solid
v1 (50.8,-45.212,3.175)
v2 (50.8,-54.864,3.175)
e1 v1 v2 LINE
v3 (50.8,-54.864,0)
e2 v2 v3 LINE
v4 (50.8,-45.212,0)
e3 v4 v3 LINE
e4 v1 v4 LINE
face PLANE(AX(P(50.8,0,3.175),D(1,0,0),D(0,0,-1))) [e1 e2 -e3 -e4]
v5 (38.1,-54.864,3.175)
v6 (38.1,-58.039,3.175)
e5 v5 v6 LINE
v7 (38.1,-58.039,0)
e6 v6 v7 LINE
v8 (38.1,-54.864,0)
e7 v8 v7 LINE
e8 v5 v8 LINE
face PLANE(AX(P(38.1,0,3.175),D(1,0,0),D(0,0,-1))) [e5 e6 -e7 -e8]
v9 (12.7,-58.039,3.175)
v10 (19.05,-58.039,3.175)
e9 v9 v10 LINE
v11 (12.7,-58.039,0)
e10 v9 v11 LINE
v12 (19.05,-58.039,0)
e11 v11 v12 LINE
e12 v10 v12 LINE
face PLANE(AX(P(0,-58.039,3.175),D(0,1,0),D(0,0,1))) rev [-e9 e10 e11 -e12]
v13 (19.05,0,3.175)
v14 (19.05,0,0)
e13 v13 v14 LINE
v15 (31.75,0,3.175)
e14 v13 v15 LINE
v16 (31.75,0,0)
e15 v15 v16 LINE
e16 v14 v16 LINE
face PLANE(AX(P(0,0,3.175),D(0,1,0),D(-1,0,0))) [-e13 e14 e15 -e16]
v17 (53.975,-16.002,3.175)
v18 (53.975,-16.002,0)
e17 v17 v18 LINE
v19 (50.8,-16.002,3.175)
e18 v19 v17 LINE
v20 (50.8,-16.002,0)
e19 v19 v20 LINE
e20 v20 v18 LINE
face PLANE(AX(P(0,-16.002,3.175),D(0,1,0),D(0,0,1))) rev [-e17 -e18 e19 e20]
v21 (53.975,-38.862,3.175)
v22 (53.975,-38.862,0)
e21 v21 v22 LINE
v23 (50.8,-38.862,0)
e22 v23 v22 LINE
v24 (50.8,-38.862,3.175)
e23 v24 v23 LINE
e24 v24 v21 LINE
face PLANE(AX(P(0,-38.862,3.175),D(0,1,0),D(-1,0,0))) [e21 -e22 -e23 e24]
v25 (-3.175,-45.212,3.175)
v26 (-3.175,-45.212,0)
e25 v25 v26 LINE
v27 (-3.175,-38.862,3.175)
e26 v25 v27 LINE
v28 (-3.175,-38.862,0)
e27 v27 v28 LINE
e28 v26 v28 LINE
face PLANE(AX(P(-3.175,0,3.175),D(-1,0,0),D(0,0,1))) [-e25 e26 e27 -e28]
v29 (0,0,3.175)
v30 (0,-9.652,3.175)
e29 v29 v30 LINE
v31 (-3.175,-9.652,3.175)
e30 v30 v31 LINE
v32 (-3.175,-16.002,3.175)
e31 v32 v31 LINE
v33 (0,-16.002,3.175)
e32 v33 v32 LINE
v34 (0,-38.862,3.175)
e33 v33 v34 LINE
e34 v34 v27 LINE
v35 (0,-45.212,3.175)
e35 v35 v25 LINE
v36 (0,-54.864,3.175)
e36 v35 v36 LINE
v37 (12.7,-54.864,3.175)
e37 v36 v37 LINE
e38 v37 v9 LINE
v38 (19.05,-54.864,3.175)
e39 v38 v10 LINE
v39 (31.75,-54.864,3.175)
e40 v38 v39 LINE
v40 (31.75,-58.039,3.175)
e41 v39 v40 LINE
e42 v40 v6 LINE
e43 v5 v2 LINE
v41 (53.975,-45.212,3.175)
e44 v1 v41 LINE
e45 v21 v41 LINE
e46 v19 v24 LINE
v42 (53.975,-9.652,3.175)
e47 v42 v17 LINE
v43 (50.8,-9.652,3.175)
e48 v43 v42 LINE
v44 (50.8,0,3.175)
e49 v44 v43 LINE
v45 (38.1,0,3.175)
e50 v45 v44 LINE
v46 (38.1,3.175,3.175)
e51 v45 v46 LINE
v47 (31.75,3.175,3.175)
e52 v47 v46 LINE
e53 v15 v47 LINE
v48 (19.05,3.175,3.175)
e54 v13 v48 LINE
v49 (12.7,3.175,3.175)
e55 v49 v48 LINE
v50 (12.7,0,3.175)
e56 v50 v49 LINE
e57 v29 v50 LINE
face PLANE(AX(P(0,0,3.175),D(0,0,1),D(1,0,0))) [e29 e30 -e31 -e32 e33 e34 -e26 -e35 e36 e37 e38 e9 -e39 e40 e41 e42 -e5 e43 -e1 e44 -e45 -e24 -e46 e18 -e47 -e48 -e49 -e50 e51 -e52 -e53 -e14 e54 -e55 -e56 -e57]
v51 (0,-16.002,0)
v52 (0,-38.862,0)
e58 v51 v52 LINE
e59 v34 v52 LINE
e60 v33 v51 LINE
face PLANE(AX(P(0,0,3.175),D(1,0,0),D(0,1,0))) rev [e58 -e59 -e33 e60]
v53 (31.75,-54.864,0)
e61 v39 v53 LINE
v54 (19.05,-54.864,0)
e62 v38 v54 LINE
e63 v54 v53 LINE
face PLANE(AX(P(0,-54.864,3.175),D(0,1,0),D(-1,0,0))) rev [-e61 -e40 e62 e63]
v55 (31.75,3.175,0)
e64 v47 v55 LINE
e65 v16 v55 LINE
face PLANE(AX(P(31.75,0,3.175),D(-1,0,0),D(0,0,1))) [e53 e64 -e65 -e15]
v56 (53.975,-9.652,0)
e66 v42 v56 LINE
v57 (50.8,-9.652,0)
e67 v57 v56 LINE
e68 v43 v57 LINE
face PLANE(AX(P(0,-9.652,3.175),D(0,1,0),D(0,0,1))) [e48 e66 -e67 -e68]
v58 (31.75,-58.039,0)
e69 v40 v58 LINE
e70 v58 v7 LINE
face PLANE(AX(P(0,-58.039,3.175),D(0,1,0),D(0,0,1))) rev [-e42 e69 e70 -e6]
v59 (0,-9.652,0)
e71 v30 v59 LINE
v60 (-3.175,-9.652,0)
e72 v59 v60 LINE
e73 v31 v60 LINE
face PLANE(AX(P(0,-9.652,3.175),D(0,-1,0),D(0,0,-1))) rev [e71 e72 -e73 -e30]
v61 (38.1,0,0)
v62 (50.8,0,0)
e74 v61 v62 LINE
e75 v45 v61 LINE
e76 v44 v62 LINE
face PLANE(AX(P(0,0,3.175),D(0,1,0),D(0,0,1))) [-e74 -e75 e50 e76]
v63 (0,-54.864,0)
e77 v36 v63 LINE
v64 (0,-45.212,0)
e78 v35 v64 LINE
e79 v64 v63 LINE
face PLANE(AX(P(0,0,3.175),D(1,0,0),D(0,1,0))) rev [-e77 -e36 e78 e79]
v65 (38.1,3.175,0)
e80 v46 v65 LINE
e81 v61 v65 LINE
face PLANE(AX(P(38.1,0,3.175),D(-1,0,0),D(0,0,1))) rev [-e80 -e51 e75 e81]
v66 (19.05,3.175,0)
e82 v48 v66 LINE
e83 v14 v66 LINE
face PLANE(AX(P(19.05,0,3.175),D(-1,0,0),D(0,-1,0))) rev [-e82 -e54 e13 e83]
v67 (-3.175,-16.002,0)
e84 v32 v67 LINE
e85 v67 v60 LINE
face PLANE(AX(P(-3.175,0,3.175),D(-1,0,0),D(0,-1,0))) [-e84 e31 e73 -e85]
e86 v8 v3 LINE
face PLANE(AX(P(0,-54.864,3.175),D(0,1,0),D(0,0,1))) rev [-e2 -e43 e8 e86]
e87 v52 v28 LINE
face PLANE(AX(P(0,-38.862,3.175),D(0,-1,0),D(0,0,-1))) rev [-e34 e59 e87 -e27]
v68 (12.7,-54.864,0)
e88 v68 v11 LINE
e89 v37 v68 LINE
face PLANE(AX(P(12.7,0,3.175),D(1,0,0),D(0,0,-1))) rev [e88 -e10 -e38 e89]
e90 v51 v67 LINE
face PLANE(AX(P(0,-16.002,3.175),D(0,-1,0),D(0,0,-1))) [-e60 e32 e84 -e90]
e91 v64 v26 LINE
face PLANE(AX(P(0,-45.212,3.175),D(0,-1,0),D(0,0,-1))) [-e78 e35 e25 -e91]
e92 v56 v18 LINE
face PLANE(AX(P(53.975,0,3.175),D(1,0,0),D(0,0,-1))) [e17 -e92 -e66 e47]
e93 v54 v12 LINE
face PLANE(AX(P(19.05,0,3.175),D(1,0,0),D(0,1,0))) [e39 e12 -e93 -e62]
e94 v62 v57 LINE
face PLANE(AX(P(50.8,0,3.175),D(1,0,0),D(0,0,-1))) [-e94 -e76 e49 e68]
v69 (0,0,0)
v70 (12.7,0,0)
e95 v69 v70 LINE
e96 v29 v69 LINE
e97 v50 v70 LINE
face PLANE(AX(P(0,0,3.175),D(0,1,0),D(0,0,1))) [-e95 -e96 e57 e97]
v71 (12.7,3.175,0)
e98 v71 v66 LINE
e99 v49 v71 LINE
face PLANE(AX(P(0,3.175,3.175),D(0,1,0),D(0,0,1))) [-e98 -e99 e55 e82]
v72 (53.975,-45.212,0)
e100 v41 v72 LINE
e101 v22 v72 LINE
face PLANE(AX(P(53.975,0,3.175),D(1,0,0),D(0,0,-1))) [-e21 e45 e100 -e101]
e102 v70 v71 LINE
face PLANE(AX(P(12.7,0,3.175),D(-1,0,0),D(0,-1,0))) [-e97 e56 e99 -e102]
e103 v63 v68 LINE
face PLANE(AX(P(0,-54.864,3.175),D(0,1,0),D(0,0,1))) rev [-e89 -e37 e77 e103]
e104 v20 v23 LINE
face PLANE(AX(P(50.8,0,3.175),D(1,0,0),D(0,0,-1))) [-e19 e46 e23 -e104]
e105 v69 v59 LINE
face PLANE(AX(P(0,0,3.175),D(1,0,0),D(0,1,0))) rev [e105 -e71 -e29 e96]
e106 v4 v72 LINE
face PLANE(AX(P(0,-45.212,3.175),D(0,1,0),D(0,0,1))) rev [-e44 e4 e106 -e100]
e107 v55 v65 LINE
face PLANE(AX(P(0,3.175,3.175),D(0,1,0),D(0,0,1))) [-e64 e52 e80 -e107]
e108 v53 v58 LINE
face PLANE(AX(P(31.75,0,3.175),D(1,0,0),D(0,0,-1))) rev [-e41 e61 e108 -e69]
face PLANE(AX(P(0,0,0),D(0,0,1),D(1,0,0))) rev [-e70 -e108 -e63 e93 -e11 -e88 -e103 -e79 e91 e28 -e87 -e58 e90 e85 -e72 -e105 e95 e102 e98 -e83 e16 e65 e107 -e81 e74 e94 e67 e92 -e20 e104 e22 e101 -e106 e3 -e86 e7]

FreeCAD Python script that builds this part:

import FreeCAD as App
import Part
import Sketcher
from FreeCAD import Vector
Q = App.Units.Quantity

doc = App.newDocument("Part")
body = doc.addObject("PartDesign::Body", "Body")

# Sketch on XY plane
sketch1 = body.newObject("Sketcher::SketchObject", "Sketch")
sketch1.AttachmentSupport = (doc.getObject("XY_Plane"), [""])
sketch1.MapMode = "FlatFace"
sketch1.addGeometry(Part.LineSegment(Vector(31.8, 0, 0), Vector(19.1, 0, 0)), False)
sketch1.addGeometry(Part.LineSegment(Vector(19.1, 0, 0), Vector(19.1, 3.2, 0)), False)
sketch1.addGeometry(Part.LineSegment(Vector(19.1, 3.2, 0), Vector(12.7, 3.2, 0)), False)
sketch1.addGeometry(Part.LineSegment(Vector(12.7, 3.2, 0), Vector(12.7, 0, 0)), False)
sketch1.addGeometry(Part.LineSegment(Vector(12.7, 0, 0), Vector(0, 0, 0)), False)
sketch1.addGeometry(Part.LineSegment(Vector(0, 0, 0), Vector(0, -9.7, 0)), False)
sketch1.addGeometry(Part.LineSegment(Vector(0, -9.7, 0), Vector(-3.2, -9.7, 0)), False)
sketch1.addGeometry(Part.LineSegment(Vector(-3.2, -9.7, 0), Vector(-3.2, -16, 0)), False)
sketch1.addGeometry(Part.LineSegment(Vector(-3.2, -16, 0), Vector(0, -16, 0)), False)
sketch1.addGeometry(Part.LineSegment(Vector(0, -16, 0), Vector(0, -38.9, 0)), False)
sketch1.addGeometry(Part.LineSegment(Vector(0, -38.9, 0), Vector(-3.2, -38.9, 0)), False)
sketch1.addGeometry(Part.LineSegment(Vector(-3.2, -38.9, 0), Vector(-3.2, -45.2, 0)), False)
sketch1.addGeometry(Part.LineSegment(Vector(-3.2, -45.2, 0), Vector(0, -45.2, 0)), False)
sketch1.addGeometry(Part.LineSegment(Vector(0, -45.2, 0), Vector(0, -54.9, 0)), False)
sketch1.addGeometry(Part.LineSegment(Vector(0, -54.9, 0), Vector(12.7, -54.9, 0)), False)
sketch1.addGeometry(Part.LineSegment(Vector(12.7, -54.9, 0), Vector(12.7, -58, 0)), False)
sketch1.addGeometry(Part.LineSegment(Vector(12.7, -58, 0), Vector(19.1, -58, 0)), False)
sketch1.addGeometry(Part.LineSegment(Vector(19.1, -58, 0), Vector(19.1, -54.9, 0)), False)
sketch1.addGeometry(Part.LineSegment(Vector(19.1, -54.9, 0), Vector(31.8, -54.9, 0)), False)
sketch1.addGeometry(Part.LineSegment(Vector(31.8, -54.9, 0), Vector(31.8, -58, 0)), False)
sketch1.addGeometry(Part.LineSegment(Vector(31.8, -58, 0), Vector(38.1, -58, 0)), False)
sketch1.addGeometry(Part.LineSegment(Vector(38.1, -58, 0), Vector(38.1, -54.9, 0)), False)
sketch1.addGeometry(Part.LineSegment(Vector(38.1, -54.9, 0), Vector(50.8, -54.9, 0)), False)
sketch1.addGeometry(Part.LineSegment(Vector(50.8, -54.9, 0), Vector(50.8, -45.2, 0)), False)
sketch1.addGeometry(Part.LineSegment(Vector(50.8, -45.2, 0), Vector(54, -45.2, 0)), False)
sketch1.addGeometry(Part.LineSegment(Vector(54, -45.2, 0), Vector(54, -38.9, 0)), False)
sketch1.addGeometry(Part.LineSegment(Vector(54, -38.9, 0), Vector(50.8, -38.9, 0)), False)
sketch1.addGeometry(Part.LineSegment(Vector(50.8, -38.9, 0), Vector(50.8, -16, 0)), False)
sketch1.addGeometry(Part.LineSegment(Vector(50.8, -16, 0), Vector(54, -16, 0)), False)
sketch1.addGeometry(Part.LineSegment(Vector(54, -16, 0), Vector(54, -9.7, 0)), False)
sketch1.addGeometry(Part.LineSegment(Vector(54, -9.7, 0), Vector(50.8, -9.7, 0)), False)
sketch1.addGeometry(Part.LineSegment(Vector(50.8, -9.7, 0), Vector(50.8, 0, 0)), False)
sketch1.addGeometry(Part.LineSegment(Vector(50.8, 0, 0), Vector(38.1, 0, 0)), False)
sketch1.addGeometry(Part.LineSegment(Vector(38.1, 0, 0), Vector(38.1, 3.2, 0)), False)
sketch1.addGeometry(Part.LineSegment(Vector(38.1, 3.2, 0), Vector(31.8, 3.2, 0)), False)
sketch1.addGeometry(Part.LineSegment(Vector(31.8, 3.2, 0), Vector(31.8, 0, 0)), False)
sketch1.addConstraint(Sketcher.Constraint("Coincident", 0, 2, 1, 1))
sketch1.addConstraint(Sketcher.Constraint("Coincident", 1, 2, 2, 1))
sketch1.addConstraint(Sketcher.Constraint("Coincident", 2, 2, 3, 1))
sketch1.addConstraint(Sketcher.Constraint("Coincident", 3, 2, 4, 1))
sketch1.addConstraint(Sketcher.Constraint("Coincident", 4, 2, 5, 1))
sketch1.addConstraint(Sketcher.Constraint("Coincident", 5, 2, 6, 1))
sketch1.addConstraint(Sketcher.Constraint("Coincident", 6, 2, 7, 1))
sketch1.addConstraint(Sketcher.Constraint("Coincident", 7, 2, 8, 1))
sketch1.addConstraint(Sketcher.Constraint("Coincident", 8, 2, 9, 1))
sketch1.addConstraint(Sketcher.Constraint("Coincident", 9, 2, 10, 1))
sketch1.addConstraint(Sketcher.Constraint("Coincident", 10, 2, 11, 1))
sketch1.addConstraint(Sketcher.Constraint("Coincident", 11, 2, 12, 1))
sketch1.addConstraint(Sketcher.Constraint("Coincident", 12, 2, 13, 1))
sketch1.addConstraint(Sketcher.Constraint("Coincident", 13, 2, 14, 1))
sketch1.addConstraint(Sketcher.Constraint("Coincident", 14, 2, 15, 1))
sketch1.addConstraint(Sketcher.Constraint("Coincident", 15, 2, 16, 1))
sketch1.addConstraint(Sketcher.Constraint("Coincident", 16, 2, 17, 1))
sketch1.addConstraint(Sketcher.Constraint("Coincident", 17, 2, 18, 1))
sketch1.addConstraint(Sketcher.Constraint("Coincident", 18, 2, 19, 1))
sketch1.addConstraint(Sketcher.Constraint("Coincident", 19, 2, 20, 1))
sketch1.addConstraint(Sketcher.Constraint("Coincident", 20, 2, 21, 1))
sketch1.addConstraint(Sketcher.Constraint("Coincident", 21, 2, 22, 1))
sketch1.addConstraint(Sketcher.Constraint("Coincident", 22, 2, 23, 1))
sketch1.addConstraint(Sketcher.Constraint("Coincident", 23, 2, 24, 1))
sketch1.addConstraint(Sketcher.Constraint("Coincident", 24, 2, 25, 1))
sketch1.addConstraint(Sketcher.Constraint("Coincident", 25, 2, 26, 1))
sketch1.addConstraint(Sketcher.Constraint("Coincident", 26, 2, 27, 1))
sketch1.addConstraint(Sketcher.Constraint("Coincident", 27, 2, 28, 1))
sketch1.addConstraint(Sketcher.Constraint("Coincident", 28, 2, 29, 1))
sketch1.addConstraint(Sketcher.Constraint("Coincident", 29, 2, 30, 1))
sketch1.addConstraint(Sketcher.Constraint("Coincident", 30, 2, 31, 1))
sketch1.addConstraint(Sketcher.Constraint("Coincident", 31, 2, 32, 1))
sketch1.addConstraint(Sketcher.Constraint("Coincident", 32, 2, 33, 1))
sketch1.addConstraint(Sketcher.Constraint("Coincident", 33, 2, 34, 1))
sketch1.addConstraint(Sketcher.Constraint("Coincident", 34, 2, 35, 1))
sketch1.addConstraint(Sketcher.Constraint("Coincident", 35, 2, 0, 1))
sketch1.addConstraint(Sketcher.Constraint("Horizontal", 0))
sketch1.addConstraint(Sketcher.Constraint("Vertical", 1))
sketch1.addConstraint(Sketcher.Constraint("Horizontal", 2))
sketch1.addConstraint(Sketcher.Constraint("Vertical", 3))
sketch1.addConstraint(Sketcher.Constraint("Horizontal", 4))
sketch1.addConstraint(Sketcher.Constraint("Vertical", 5))
sketch1.addConstraint(Sketcher.Constraint("Horizontal", 6))
sketch1.addConstraint(Sketcher.Constraint("Vertical", 7))
sketch1.addConstraint(Sketcher.Constraint("Horizontal", 8))
sketch1.addConstraint(Sketcher.Constraint("Vertical", 9))
sketch1.addConstraint(Sketcher.Constraint("Horizontal", 10))
sketch1.addConstraint(Sketcher.Constraint("Vertical", 11))
sketch1.addConstraint(Sketcher.Constraint("Horizontal", 12))
sketch1.addConstraint(Sketcher.Constraint("Vertical", 13))
sketch1.addConstraint(Sketcher.Constraint("Horizontal", 14))
sketch1.addConstraint(Sketcher.Constraint("Vertical", 15))
sketch1.addConstraint(Sketcher.Constraint("Horizontal", 16))
sketch1.addConstraint(Sketcher.Constraint("Vertical", 17))
sketch1.addConstraint(Sketcher.Constraint("Horizontal", 18))
sketch1.addConstraint(Sketcher.Constraint("Vertical", 19))
sketch1.addConstraint(Sketcher.Constraint("Horizontal", 20))
sketch1.addConstraint(Sketcher.Constraint("Vertical", 21))
sketch1.addConstraint(Sketcher.Constraint("Horizontal", 22))
sketch1.addConstraint(Sketcher.Constraint("Vertical", 23))
sketch1.addConstraint(Sketcher.Constraint("Horizontal", 24))
sketch1.addConstraint(Sketcher.Constraint("Vertical", 25))
sketch1.addConstraint(Sketcher.Constraint("Horizontal", 26))
sketch1.addConstraint(Sketcher.Constraint("Vertical", 27))
sketch1.addConstraint(Sketcher.Constraint("Horizontal", 28))
sketch1.addConstraint(Sketcher.Constraint("Vertical", 29))
sketch1.addConstraint(Sketcher.Constraint("Horizontal", 30))
sketch1.addConstraint(Sketcher.Constraint("Vertical", 31))
sketch1.addConstraint(Sketcher.Constraint("Horizontal", 32))
sketch1.addConstraint(Sketcher.Constraint("Vertical", 33))
sketch1.addConstraint(Sketcher.Constraint("Horizontal", 34))
sketch1.addConstraint(Sketcher.Constraint("Vertical", 35))
sketch1.addConstraint(Sketcher.Constraint("Coincident", 4, 2, -1, 1))
sketch1.addConstraint(Sketcher.Constraint("PointOnObject", 0, 2, -1))
sketch1.addConstraint(Sketcher.Constraint("PointOnObject", 8, 2, -2))
sketch1.addConstraint(Sketcher.Constraint("PointOnObject", 12, 2, -2))
sketch1.addConstraint(Sketcher.Constraint("PointOnObject", 31, 2, -1))
sketch1.addConstraint(Sketcher.Constraint("Horizontal", 14, 2, 17, 2))
sketch1.addConstraint(Sketcher.Constraint("Horizontal", 16, 2, 19, 2))
sketch1.addConstraint(Sketcher.Constraint("Horizontal", 18, 2, 21, 2))
sketch1.addConstraint(Sketcher.Constraint("Horizontal", 12, 2, 23, 2))
sketch1.addConstraint(Sketcher.Constraint("Horizontal", 10, 2, 25, 2))
sketch1.addConstraint(Sketcher.Constraint("Horizontal", 8, 2, 27, 2))
sketch1.addConstraint(Sketcher.Constraint("Horizontal", 6, 2, 29, 2))
sketch1.addConstraint(Sketcher.Constraint("Horizontal", 2, 2, 33, 2))
sketch1.addConstraint(Sketcher.Constraint("Vertical", 7, 2, 10, 2))
sketch1.addConstraint(Sketcher.Constraint("Vertical", 3, 2, 14, 2))
sketch1.addConstraint(Sketcher.Constraint("Vertical", 1, 2, 16, 2))
sketch1.addConstraint(Sketcher.Constraint("Vertical", 23, 2, 26, 2))
sketch1.addConstraint(Sketcher.Constraint("Vertical", 25, 2, 28, 2))
sketch1.addConstraint(Sketcher.Constraint("Vertical", 27, 2, 30, 2))
sketch1.addConstraint(Sketcher.Constraint("Vertical", 21, 2, 32, 2))
sketch1.addConstraint(Sketcher.Constraint("Vertical", 19, 2, 34, 2))
sketch1.addConstraint(Sketcher.Constraint("Equal", 0, 4))
sketch1.addConstraint(Sketcher.Constraint("Equal", 16, 20))
sketch1.addConstraint(Sketcher.Constraint("Equal", 18, 22))
sketch1.addConstraint(Sketcher.Constraint("Equal", 12, 24))
sketch1.addConstraint(Sketcher.Constraint("Equal", 30, 1))
sketch1.addConstraint(Sketcher.Constraint("Equal", 34, 7))
sketch1.addConstraint(Sketcher.Constraint("Equal", 7, 11))
sketch1.addConstraint(Sketcher.Constraint("Equal", 5, 13))
sketch1.addConstraint(Sketcher.Constraint("Equal", 3, 15))
sketch1.addConstraint(Sketcher.Constraint("DistanceX", 0, 2, 0, 1, Q("0.5 in")))
sketch1.addConstraint(Sketcher.Constraint("DistanceY", 9, 2, 9, 1, Q("0.9 in")))
sketch1.addConstraint(Sketcher.Constraint("DistanceX", -1, 1, 22, 2, Q("2 in")))
sketch1.addConstraint(Sketcher.Constraint("DistanceY", 5, 2, 5, 1, Q("0.38 in")))
sketch1.addConstraint(Sketcher.Constraint("DistanceX", 6, 2, 6, 1, Q("0.125 in")))
pad1 = body.newObject("PartDesign::Pad", "Pad")
pad1.Profile = sketch1
pad1.Length = Q("0.125 in")

doc.recompute()
